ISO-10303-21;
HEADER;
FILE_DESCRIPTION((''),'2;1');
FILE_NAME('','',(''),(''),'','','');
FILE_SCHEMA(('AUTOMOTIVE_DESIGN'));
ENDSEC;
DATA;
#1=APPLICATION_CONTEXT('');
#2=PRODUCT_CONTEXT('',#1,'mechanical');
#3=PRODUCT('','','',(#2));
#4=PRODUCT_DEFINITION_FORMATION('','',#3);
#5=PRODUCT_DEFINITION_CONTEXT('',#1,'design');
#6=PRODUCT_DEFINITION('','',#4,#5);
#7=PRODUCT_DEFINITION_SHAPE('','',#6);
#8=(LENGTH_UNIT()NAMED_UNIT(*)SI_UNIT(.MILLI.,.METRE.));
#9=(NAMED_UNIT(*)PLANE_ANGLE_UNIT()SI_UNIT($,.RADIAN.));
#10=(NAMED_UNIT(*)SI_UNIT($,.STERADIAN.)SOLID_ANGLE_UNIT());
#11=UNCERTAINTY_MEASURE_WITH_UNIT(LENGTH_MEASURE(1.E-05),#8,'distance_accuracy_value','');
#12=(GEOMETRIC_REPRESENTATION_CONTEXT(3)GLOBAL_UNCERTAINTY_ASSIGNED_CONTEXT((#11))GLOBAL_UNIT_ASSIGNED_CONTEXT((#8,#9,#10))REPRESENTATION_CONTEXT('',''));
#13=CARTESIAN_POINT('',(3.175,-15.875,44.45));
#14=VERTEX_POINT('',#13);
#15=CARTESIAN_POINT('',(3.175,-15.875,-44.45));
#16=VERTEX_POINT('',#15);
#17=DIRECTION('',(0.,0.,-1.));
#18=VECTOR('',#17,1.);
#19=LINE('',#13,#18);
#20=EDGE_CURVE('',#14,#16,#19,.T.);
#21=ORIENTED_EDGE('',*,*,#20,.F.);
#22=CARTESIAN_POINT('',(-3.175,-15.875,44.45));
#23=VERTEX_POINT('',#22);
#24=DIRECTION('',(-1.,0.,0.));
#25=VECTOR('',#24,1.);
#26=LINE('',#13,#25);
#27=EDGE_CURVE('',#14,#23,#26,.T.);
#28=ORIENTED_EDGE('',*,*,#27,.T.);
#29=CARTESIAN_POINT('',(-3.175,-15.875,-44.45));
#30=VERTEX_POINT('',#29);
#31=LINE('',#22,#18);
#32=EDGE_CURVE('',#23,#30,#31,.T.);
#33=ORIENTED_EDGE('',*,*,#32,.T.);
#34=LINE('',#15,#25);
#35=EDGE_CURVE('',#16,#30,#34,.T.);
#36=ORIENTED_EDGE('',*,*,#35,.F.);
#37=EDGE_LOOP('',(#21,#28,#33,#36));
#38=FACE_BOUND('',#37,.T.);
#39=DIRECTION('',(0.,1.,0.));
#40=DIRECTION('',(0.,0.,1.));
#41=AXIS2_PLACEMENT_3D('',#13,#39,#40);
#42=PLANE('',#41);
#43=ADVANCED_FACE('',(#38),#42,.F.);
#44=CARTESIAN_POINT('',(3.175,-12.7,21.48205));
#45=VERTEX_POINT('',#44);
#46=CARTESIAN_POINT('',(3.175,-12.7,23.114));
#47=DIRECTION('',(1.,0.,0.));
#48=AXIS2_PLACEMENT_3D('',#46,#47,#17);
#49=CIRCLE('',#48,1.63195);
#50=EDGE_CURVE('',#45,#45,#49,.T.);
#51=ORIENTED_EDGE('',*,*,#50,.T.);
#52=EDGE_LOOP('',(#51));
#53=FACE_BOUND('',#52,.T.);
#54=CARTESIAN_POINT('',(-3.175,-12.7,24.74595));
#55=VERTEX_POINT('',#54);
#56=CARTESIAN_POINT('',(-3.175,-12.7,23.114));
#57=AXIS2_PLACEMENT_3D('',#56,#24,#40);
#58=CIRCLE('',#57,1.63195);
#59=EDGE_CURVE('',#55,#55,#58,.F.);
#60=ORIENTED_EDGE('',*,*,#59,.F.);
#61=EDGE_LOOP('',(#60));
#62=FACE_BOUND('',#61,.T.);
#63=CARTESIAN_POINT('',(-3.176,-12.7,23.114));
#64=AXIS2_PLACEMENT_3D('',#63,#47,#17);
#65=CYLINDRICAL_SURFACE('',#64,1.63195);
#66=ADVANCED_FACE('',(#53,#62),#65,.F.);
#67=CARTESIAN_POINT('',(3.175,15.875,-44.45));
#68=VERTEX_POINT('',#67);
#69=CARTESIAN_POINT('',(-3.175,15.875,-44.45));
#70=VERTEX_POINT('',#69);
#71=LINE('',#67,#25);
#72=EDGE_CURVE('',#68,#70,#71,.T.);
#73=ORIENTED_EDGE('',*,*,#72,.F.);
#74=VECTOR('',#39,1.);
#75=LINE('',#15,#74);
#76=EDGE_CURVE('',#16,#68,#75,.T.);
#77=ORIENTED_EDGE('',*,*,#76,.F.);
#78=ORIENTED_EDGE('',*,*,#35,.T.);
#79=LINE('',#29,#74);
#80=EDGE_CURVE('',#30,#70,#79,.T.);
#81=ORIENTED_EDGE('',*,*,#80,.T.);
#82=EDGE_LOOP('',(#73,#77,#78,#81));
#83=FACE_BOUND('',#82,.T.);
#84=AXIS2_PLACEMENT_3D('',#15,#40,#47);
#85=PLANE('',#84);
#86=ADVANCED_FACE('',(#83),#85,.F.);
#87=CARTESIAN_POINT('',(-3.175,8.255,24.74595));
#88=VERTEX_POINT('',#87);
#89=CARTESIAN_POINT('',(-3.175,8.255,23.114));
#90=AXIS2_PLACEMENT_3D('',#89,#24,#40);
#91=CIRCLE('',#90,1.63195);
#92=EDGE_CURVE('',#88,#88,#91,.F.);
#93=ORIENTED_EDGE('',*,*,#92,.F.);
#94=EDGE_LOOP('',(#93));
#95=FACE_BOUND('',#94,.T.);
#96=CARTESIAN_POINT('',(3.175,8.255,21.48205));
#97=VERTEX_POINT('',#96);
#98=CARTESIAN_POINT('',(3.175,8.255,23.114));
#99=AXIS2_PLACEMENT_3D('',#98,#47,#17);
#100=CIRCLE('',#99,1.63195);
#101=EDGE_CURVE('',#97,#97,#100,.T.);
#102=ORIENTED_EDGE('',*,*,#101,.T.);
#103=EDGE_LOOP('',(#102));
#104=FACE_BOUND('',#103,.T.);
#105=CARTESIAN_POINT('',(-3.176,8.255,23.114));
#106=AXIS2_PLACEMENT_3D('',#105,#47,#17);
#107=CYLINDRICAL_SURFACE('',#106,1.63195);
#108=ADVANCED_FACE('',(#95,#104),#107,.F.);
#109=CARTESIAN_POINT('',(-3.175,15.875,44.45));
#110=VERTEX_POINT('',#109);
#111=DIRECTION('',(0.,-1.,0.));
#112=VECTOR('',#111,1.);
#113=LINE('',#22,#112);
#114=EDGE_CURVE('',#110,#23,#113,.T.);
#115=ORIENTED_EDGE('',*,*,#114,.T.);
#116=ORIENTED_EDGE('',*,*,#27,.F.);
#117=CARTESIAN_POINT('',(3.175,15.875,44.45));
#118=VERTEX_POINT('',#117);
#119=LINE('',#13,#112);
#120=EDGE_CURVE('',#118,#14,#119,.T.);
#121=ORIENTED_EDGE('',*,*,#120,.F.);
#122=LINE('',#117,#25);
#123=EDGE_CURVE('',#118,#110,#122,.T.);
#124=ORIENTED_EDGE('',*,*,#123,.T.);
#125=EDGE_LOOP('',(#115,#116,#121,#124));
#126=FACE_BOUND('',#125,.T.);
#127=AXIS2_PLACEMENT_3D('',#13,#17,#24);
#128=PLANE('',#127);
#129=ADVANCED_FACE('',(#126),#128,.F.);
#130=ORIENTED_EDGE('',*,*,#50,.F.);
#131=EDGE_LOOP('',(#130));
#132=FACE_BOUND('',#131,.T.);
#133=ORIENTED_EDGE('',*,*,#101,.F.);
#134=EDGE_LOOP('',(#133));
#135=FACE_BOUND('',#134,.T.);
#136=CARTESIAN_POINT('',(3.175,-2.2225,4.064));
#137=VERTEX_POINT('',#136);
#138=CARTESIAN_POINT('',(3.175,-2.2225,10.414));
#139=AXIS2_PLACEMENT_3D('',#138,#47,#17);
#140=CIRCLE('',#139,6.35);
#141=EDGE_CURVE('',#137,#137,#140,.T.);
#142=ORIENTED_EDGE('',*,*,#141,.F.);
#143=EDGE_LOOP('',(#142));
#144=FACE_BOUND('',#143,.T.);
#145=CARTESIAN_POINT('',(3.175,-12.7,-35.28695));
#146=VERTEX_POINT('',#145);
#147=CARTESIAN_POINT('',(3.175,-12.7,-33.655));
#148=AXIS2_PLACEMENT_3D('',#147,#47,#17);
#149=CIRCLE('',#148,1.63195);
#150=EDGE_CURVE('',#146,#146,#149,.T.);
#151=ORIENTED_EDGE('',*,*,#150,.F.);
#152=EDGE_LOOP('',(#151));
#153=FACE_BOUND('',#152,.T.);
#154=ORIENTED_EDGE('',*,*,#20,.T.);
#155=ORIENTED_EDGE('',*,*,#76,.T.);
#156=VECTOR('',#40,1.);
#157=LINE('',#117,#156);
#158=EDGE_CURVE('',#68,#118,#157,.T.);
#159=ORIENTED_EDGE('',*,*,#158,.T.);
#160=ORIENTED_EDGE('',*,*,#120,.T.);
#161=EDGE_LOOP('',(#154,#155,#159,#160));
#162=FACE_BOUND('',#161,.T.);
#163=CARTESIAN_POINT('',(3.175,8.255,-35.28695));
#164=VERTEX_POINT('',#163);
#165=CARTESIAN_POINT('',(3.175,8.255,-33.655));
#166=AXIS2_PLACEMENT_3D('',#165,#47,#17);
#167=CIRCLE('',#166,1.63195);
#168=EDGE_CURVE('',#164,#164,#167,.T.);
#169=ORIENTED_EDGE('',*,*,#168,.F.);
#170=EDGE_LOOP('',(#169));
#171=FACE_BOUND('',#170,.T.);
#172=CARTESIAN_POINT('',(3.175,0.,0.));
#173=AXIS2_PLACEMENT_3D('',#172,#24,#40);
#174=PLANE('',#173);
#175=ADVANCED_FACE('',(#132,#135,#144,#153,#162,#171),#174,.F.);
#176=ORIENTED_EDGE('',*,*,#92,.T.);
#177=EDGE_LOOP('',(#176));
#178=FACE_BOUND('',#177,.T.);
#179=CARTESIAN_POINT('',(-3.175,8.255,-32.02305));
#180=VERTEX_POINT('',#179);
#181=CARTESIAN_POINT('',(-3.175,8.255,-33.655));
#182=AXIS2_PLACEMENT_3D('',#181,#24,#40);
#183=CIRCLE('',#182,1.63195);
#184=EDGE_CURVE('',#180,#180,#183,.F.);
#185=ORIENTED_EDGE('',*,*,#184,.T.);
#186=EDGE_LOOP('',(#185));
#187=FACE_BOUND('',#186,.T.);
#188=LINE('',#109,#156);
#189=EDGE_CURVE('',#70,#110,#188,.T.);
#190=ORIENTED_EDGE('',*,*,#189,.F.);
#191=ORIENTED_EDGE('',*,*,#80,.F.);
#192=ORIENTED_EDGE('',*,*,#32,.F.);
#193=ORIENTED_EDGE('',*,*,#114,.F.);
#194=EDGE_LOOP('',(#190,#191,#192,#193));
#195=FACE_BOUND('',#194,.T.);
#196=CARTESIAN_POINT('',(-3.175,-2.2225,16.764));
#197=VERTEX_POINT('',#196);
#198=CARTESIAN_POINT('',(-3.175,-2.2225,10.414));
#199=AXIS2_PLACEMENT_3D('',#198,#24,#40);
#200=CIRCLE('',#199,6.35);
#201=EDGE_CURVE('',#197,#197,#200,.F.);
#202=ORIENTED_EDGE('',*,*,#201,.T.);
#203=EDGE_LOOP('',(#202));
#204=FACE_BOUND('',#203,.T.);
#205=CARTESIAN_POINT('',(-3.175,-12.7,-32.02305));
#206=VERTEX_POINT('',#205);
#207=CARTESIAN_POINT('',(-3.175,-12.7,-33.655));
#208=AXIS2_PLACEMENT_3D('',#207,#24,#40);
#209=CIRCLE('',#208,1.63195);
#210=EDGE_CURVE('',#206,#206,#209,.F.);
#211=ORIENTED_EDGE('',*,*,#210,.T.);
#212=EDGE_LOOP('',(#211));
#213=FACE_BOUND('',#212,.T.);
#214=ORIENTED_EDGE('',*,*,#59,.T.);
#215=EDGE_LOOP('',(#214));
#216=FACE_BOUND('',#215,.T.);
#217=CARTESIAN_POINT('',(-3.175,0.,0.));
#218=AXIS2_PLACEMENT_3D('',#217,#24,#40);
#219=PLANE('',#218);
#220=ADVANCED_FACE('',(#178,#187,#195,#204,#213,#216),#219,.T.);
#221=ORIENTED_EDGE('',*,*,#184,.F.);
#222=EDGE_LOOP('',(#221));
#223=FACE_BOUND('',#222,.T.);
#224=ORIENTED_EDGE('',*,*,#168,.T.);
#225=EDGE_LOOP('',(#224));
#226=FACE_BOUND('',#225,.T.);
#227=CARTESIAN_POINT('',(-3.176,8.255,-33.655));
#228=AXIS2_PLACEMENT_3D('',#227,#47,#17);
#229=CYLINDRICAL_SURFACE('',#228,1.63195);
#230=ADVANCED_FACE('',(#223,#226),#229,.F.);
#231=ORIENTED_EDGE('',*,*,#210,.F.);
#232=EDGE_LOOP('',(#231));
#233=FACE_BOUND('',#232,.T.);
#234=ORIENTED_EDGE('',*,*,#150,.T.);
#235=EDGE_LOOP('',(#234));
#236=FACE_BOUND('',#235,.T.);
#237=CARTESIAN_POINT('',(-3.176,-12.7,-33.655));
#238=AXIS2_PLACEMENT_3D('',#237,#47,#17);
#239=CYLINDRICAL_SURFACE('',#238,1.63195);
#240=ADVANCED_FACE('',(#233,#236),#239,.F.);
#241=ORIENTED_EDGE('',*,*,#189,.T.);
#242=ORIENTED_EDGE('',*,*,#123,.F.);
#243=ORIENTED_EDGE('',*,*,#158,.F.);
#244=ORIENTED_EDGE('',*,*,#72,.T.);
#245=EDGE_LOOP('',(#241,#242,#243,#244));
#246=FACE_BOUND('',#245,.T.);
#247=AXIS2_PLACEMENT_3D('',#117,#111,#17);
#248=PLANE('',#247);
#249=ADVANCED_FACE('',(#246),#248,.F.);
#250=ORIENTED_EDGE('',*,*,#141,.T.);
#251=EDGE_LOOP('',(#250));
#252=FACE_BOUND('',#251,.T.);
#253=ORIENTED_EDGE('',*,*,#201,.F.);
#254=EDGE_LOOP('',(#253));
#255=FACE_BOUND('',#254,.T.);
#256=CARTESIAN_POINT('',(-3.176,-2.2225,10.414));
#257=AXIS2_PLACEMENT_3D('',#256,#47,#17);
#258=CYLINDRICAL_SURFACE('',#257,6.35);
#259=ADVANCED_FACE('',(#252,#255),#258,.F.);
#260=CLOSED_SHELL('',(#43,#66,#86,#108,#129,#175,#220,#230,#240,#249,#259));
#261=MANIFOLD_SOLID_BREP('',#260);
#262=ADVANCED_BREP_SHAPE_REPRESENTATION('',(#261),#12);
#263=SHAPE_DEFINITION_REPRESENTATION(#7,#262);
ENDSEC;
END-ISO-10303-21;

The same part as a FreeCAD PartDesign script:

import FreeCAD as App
import Part
import Sketcher

V = App.Vector
Q = App.Units.Quantity

doc = App.newDocument("Part")
params = doc.addObject("Spreadsheet::Sheet", "Params")
for row, (alias, value) in enumerate([
    ("sketch1_height", "3.5 in"),
    ("sketch1_width", "1.25 in"),
    ("pad1_length", "0.25 in"),
    ("sketch6_diameter", "0.5 in"),
], start=1):
    params.set(f"A{row}", alias)
    params.set(f"B{row}", "=" + value)
    params.setAlias(f"B{row}", alias)

body = doc.addObject("PartDesign::Body", "Body")

sketch1 = body.newObject("Sketcher::SketchObject", "Sketch")
sketch1.AttachmentSupport = (doc.getObject("YZ_Plane"), [""])
sketch1.MapMode = "FlatFace"
sketch1.addGeometry(Part.LineSegment(V(16, 44, 0), V(-16, 44, 0)), False)
sketch1.addGeometry(Part.LineSegment(V(-16, 44, 0), V(-16, -44, 0)), False)
sketch1.addGeometry(Part.LineSegment(V(-16, -44, 0), V(16, -44, 0)), False)
sketch1.addGeometry(Part.LineSegment(V(16, -44, 0), V(16, 44, 0)), False)
sketch1.addConstraint(Sketcher.Constraint("Coincident", 0, 2, 1, 1))
sketch1.addConstraint(Sketcher.Constraint("Coincident", 1, 2, 2, 1))
sketch1.addConstraint(Sketcher.Constraint("Coincident", 2, 2, 3, 1))
sketch1.addConstraint(Sketcher.Constraint("Coincident", 3, 2, 0, 1))
sketch1.addConstraint(Sketcher.Constraint("Horizontal", 0))
sketch1.addConstraint(Sketcher.Constraint("Vertical", 1))
sketch1.addConstraint(Sketcher.Constraint("Horizontal", 2))
sketch1.addConstraint(Sketcher.Constraint("Vertical", 3))
sketch1.addConstraint(Sketcher.Constraint("Symmetric", 0, 2, 2, 2, -1, 1))
sketch1.addConstraint(Sketcher.Constraint("DistanceY", 1, 2, 1, 1, Q("3.5 in")))
sketch1.addConstraint(Sketcher.Constraint("DistanceX", 0, 2, 0, 1, Q("1.25 in")))
sketch1.setExpression("Constraints[9]", "Params.sketch1_height")
sketch1.setExpression("Constraints[10]", "Params.sketch1_width")
pad1 = body.newObject("PartDesign::Pad", "Pad")
pad1.Profile = sketch1
pad1.setExpression("Length", "Params.pad1_length")
pad1.Midplane = True

sketch2 = body.newObject("Sketcher::SketchObject", "Sketch001")
sketch2.AttachmentSupport = (doc.getObject("YZ_Plane"), [""])
sketch2.MapMode = "FlatFace"
sketch2.AttachmentOffset = App.Placement(V(0, 0, 0.125 * 25.4), App.Rotation())
sketch2.addGeometry(Part.Circle(V(8.3, 23.1, 0), V(0, 0, 1), 1.6), False)
sketch2.addConstraint(Sketcher.Constraint("Diameter", 0, Q("0.1285 in")))
sketch2.addConstraint(Sketcher.Constraint("DistanceY", -1, 1, 0, 3, Q("0.91 in")))
sketch2.addConstraint(Sketcher.Constraint("DistanceX", -1, 1, 0, 3, Q("0.325 in")))
pocket1 = body.newObject("PartDesign::Pocket", "Pocket")
pocket1.Profile = sketch2
pocket1.Type = "UpToFirst"

sketch3 = body.newObject("Sketcher::SketchObject", "Sketch002")
sketch3.AttachmentSupport = (doc.getObject("YZ_Plane"), [""])
sketch3.MapMode = "FlatFace"
sketch3.AttachmentOffset = App.Placement(V(0, 0, 0.125 * 25.4), App.Rotation())
sketch3.addGeometry(Part.Circle(V(-12.7, 23.1, 0), V(0, 0, 1), 1.6), False)
sketch3.addConstraint(Sketcher.Constraint("Diameter", 0, Q("0.1285 in")))
sketch3.addConstraint(Sketcher.Constraint("DistanceX", 0, 3, -1, 1, Q("0.5 in")))
sketch3.addConstraint(Sketcher.Constraint("DistanceY", -1, 1, 0, 3, Q("0.91 in")))
pocket2 = body.newObject("PartDesign::Pocket", "Pocket001")
pocket2.Profile = sketch3
pocket2.Type = "UpToFirst"

sketch4 = body.newObject("Sketcher::SketchObject", "Sketch003")
sketch4.AttachmentSupport = (doc.getObject("YZ_Plane"), [""])
sketch4.MapMode = "FlatFace"
sketch4.AttachmentOffset = App.Placement(V(0, 0, 0.125 * 25.4), App.Rotation())
sketch4.addGeometry(Part.Circle(V(-12.7, -33.7, 0), V(0, 0, 1), 1.6), False)
sketch4.addConstraint(Sketcher.Constraint("Diameter", 0, Q("0.1285 in")))
sketch4.addConstraint(Sketcher.Constraint("DistanceX", 0, 3, -1, 1, Q("0.5 in")))
sketch4.addConstraint(Sketcher.Constraint("DistanceY", 0, 3, -1, 1, Q("1.325 in")))
pocket3 = body.newObject("PartDesign::Pocket", "Pocket002")
pocket3.Profile = sketch4
pocket3.Type = "UpToFirst"

sketch5 = body.newObject("Sketcher::SketchObject", "Sketch004")
sketch5.AttachmentSupport = (doc.getObject("YZ_Plane"), [""])
sketch5.MapMode = "FlatFace"
sketch5.AttachmentOffset = App.Placement(V(0, 0, 0.125 * 25.4), App.Rotation())
sketch5.addGeometry(Part.Circle(V(8.3, -33.7, 0), V(0, 0, 1), 1.6), False)
sketch5.addConstraint(Sketcher.Constraint("Diameter", 0, Q("0.1285 in")))
sketch5.addConstraint(Sketcher.Constraint("DistanceX", -1, 1, 0, 3, Q("0.325 in")))
sketch5.addConstraint(Sketcher.Constraint("DistanceY", 0, 3, -1, 1, Q("1.325 in")))
pocket4 = body.newObject("PartDesign::Pocket", "Pocket003")
pocket4.Profile = sketch5
pocket4.Type = "UpToFirst"

sketch6 = body.newObject("Sketcher::SketchObject", "Sketch005")
sketch6.AttachmentSupport = (doc.getObject("YZ_Plane"), [""])
sketch6.MapMode = "FlatFace"
sketch6.AttachmentOffset = App.Placement(V(0, 0, 0.125 * 25.4), App.Rotation())
sketch6.addGeometry(Part.Circle(V(-2, 10, 0), V(0, 0, 1), 6), False)
sketch6.addConstraint(Sketcher.Constraint("Diameter", 0, Q("0.5 in")))
sketch6.addConstraint(Sketcher.Constraint("DistanceY", -1, 1, 0, 3, Q("0.41 in")))
sketch6.addConstraint(Sketcher.Constraint("DistanceX", 0, 3, -1, 1, Q("0.0875 in")))
sketch6.setExpression("Constraints[0]", "Params.sketch6_diameter")
pocket5 = body.newObject("PartDesign::Pocket", "Pocket004")
pocket5.Profile = sketch6
pocket5.Type = "UpToFirst"

doc.recompute()
